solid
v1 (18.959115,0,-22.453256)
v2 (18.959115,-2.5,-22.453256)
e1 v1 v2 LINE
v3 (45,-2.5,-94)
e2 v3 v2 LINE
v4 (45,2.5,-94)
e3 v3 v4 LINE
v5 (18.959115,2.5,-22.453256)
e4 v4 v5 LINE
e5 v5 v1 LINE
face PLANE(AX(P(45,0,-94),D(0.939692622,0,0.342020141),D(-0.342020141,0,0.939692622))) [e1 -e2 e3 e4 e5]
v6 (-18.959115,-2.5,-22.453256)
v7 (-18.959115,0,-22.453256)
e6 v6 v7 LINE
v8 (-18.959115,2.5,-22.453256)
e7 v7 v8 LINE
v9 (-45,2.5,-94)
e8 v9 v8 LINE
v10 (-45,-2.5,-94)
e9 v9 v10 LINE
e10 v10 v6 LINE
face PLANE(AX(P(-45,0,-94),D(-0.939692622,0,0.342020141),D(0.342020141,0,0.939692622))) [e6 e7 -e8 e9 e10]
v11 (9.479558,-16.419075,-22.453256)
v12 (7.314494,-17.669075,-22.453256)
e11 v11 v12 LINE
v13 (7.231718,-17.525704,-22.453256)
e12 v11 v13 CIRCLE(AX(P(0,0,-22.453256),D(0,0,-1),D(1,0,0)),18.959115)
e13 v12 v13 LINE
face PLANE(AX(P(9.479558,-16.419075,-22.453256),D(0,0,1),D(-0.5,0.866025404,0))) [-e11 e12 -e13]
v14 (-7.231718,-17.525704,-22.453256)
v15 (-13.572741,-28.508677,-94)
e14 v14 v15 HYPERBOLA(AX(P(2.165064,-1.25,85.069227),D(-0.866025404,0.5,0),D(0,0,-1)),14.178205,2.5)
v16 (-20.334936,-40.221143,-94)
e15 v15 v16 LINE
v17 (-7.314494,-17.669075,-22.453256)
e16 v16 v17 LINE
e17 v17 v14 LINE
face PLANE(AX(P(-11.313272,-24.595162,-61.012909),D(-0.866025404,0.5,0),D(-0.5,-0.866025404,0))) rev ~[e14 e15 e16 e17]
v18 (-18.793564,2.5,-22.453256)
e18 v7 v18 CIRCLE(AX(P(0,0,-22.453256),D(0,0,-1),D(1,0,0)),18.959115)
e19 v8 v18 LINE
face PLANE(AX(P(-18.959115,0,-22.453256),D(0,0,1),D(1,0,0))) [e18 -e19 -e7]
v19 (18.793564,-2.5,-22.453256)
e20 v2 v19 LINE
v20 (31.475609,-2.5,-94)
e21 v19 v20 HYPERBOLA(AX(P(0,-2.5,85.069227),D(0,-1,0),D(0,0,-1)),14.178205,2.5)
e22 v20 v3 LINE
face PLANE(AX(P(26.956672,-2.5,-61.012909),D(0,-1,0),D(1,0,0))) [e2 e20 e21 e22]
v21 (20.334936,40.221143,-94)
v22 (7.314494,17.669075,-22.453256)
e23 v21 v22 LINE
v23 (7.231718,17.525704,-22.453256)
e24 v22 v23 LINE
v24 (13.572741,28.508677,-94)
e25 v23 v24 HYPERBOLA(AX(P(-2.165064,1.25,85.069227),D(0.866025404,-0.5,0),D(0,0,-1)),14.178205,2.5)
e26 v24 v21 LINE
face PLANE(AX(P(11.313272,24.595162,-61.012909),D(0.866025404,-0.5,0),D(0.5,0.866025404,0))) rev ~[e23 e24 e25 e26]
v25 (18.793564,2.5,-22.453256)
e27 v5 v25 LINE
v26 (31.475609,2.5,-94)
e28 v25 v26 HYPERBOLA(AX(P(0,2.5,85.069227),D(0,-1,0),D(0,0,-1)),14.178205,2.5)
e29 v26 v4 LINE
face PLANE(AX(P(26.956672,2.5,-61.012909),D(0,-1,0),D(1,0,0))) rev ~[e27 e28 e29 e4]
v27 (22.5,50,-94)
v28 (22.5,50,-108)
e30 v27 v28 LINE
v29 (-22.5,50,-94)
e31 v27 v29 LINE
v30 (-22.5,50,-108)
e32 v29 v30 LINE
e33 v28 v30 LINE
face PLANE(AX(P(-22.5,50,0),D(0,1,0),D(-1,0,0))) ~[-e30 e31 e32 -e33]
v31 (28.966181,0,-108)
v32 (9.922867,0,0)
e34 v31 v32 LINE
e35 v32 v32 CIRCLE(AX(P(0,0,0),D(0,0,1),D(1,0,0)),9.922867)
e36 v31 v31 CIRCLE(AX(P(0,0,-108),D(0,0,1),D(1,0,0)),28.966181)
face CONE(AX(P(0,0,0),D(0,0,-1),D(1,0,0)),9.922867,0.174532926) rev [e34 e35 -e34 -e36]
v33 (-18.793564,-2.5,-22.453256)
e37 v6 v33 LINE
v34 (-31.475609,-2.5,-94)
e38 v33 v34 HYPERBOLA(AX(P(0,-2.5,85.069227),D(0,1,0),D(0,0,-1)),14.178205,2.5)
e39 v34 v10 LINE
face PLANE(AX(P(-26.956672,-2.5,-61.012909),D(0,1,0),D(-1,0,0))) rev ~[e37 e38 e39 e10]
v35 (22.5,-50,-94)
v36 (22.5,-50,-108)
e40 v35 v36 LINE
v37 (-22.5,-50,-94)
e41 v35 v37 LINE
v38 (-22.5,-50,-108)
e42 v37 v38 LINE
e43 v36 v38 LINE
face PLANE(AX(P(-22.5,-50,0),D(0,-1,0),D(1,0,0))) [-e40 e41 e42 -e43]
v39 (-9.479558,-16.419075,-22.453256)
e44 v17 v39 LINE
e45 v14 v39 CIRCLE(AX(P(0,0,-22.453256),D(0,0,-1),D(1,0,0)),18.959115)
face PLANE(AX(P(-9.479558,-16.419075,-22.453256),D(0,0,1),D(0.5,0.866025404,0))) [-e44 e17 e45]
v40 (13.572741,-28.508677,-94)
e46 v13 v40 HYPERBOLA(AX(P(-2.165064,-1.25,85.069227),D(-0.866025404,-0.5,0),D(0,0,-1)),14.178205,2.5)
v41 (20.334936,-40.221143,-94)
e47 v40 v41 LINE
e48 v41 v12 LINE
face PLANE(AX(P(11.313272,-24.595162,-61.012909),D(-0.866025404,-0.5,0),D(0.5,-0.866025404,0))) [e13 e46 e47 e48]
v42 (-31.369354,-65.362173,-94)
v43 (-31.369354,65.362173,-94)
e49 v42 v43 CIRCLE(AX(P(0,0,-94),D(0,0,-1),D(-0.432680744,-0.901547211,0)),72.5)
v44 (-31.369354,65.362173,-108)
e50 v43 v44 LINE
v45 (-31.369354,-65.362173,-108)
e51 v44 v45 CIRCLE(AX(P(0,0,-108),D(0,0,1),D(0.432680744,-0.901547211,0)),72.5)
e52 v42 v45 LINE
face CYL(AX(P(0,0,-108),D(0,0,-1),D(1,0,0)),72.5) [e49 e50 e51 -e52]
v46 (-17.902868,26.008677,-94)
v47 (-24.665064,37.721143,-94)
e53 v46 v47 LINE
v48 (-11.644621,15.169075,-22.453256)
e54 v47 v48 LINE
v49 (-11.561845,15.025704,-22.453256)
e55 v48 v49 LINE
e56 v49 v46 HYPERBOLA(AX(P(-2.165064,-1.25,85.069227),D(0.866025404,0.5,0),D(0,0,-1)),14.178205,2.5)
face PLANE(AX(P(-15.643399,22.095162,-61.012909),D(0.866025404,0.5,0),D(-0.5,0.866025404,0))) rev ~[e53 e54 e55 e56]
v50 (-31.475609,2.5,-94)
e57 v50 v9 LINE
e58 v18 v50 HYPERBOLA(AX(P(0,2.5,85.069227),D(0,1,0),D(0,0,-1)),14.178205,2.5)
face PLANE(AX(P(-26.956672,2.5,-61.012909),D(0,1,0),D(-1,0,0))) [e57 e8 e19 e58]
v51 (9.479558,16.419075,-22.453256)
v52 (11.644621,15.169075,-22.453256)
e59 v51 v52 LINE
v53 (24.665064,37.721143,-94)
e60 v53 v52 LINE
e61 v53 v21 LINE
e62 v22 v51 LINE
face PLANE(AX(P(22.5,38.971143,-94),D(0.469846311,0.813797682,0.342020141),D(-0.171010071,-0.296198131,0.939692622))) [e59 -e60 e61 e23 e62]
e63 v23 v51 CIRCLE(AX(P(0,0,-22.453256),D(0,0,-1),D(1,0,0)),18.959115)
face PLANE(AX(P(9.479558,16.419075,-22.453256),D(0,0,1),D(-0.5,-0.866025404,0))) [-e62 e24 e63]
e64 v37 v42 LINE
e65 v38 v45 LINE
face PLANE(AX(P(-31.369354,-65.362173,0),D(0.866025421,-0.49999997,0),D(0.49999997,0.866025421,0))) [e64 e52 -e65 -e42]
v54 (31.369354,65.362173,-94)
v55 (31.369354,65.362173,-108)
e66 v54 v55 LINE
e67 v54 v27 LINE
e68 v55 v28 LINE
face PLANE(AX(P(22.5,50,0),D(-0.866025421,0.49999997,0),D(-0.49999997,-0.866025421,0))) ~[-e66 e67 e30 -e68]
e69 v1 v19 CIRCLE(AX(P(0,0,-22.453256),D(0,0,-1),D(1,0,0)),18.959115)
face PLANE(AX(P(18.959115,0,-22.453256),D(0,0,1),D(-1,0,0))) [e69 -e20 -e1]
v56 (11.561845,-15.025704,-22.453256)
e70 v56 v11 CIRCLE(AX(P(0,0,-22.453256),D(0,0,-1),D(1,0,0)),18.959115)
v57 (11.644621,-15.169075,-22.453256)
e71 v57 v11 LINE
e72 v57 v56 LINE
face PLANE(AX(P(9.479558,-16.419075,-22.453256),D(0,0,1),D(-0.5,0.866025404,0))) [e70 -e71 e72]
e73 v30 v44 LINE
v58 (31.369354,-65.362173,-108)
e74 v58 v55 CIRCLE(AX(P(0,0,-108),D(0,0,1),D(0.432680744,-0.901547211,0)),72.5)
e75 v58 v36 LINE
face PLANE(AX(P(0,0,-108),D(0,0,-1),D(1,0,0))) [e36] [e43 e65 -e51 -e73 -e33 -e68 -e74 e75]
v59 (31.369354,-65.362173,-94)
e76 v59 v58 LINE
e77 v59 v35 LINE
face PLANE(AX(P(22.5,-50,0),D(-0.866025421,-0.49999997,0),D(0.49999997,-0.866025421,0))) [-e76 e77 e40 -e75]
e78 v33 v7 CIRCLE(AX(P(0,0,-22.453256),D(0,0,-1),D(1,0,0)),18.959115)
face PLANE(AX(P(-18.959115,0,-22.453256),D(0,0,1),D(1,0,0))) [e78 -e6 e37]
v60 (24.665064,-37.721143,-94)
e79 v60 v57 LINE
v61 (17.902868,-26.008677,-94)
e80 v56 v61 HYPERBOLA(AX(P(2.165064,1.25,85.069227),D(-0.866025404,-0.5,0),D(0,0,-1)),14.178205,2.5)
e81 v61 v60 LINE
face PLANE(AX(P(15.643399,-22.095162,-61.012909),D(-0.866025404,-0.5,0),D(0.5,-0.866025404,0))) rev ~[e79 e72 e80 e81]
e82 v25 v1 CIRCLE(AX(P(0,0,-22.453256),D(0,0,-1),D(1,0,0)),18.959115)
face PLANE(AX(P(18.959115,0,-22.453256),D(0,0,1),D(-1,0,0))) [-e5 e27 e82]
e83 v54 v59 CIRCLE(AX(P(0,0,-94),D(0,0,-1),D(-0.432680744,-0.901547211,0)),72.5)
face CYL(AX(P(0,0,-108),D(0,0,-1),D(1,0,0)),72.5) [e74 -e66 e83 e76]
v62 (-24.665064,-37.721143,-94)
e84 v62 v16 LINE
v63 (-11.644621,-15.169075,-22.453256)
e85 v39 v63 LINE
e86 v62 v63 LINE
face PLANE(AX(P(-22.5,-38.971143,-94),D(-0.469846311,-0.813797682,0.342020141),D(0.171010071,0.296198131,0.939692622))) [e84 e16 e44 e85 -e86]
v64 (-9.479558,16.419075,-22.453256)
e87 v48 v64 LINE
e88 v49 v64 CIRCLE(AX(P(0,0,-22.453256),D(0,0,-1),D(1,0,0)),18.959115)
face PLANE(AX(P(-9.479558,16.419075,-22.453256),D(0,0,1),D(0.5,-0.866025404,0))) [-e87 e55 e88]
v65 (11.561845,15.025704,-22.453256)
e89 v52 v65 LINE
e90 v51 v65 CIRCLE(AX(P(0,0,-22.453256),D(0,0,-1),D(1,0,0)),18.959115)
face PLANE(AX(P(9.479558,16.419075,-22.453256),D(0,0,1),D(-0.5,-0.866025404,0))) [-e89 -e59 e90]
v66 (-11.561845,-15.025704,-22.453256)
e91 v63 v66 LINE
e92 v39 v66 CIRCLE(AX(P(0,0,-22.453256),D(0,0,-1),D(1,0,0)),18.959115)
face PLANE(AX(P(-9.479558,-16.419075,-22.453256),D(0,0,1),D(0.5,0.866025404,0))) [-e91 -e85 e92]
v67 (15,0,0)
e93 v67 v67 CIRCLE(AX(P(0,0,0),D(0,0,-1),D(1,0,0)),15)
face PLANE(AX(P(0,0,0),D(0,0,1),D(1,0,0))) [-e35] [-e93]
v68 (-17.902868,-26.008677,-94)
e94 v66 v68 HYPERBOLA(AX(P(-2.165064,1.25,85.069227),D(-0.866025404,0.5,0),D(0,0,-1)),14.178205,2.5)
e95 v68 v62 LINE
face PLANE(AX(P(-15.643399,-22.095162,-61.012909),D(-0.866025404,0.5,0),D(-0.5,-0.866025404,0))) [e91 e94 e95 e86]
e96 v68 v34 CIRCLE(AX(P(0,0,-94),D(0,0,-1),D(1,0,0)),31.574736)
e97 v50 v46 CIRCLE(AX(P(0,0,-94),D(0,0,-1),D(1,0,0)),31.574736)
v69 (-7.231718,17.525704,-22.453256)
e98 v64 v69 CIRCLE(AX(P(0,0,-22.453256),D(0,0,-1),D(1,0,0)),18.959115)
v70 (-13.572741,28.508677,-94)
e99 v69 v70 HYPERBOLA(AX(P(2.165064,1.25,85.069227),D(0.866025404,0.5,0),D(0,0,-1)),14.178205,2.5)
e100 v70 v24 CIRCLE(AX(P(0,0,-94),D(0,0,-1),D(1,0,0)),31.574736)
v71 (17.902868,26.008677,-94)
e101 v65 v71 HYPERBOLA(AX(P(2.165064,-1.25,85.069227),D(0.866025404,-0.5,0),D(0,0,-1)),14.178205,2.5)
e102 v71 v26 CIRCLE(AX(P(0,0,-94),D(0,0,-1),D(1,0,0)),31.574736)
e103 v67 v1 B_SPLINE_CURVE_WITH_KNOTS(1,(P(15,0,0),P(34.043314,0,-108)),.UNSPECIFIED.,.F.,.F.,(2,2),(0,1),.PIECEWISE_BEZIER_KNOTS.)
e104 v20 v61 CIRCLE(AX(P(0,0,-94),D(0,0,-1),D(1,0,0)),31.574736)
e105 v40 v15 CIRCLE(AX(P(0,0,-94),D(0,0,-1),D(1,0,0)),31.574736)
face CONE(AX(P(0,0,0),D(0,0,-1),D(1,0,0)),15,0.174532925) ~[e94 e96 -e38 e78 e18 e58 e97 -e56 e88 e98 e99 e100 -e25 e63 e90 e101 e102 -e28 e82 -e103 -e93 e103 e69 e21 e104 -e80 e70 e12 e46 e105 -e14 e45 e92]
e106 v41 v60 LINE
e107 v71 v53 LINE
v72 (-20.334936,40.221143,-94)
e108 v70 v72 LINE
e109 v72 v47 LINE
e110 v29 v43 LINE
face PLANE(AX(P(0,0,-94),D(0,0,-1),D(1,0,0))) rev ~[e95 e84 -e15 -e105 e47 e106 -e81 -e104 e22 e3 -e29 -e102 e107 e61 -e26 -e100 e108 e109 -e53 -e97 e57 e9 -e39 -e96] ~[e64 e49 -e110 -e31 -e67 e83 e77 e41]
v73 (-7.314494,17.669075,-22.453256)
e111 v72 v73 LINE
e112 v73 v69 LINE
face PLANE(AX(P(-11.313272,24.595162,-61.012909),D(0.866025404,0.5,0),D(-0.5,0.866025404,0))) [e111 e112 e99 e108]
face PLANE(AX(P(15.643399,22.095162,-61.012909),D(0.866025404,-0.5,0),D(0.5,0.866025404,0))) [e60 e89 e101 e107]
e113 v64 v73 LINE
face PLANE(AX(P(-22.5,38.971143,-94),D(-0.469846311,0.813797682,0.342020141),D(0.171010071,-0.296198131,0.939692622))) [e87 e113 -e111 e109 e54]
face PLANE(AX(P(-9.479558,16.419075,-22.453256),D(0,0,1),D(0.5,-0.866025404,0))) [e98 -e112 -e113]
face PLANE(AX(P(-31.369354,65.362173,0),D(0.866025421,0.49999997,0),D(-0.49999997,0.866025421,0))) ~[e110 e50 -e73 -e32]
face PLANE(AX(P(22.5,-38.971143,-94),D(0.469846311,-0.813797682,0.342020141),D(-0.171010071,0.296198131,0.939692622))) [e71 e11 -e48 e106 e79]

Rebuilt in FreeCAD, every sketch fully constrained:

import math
import FreeCAD as App
import Part
import Sketcher
Q = App.Units.Quantity


def add_polygon(sketch, points):
    """Adds a closed chain of lines whose ends are joined by coincident constraints."""
    first, n = sketch.GeometryCount, len(points)
    for a, b in zip(points, points[1:] + points[:1]):
        sketch.addGeometry(Part.LineSegment(App.Vector(*a, 0), App.Vector(*b, 0)), False)
    for i in range(n):
        sketch.addConstraint(Sketcher.Constraint("Coincident", first + i, 2, first + (i + 1) % n, 1))

doc = App.newDocument("Part")
body = doc.addObject("PartDesign::Body", "Body")

sketch1 = body.newObject("Sketcher::SketchObject", "Sketch")
sketch1.AttachmentSupport = (doc.getObject("XY_Plane"), [""])
sketch1.MapMode = "FlatFace"
sketch1.addGeometry(Part.Circle(App.Vector(0, 0, 0), App.Vector(0, 0, 1), 15), False)
sketch1.addConstraint([
    Sketcher.Constraint("Coincident", 0, 3, -1, 1),
    Sketcher.Constraint("Diameter", 0, Q("30 mm")),
])
pad1 = body.newObject("PartDesign::Pad", "Pad")
pad1.Profile = sketch1
pad1.Length = 108
pad1.Reversed = True
pad1.TaperAngle = 10

sketch2 = body.newObject("Sketcher::SketchObject", "Sketch001")
sketch2.AttachmentSupport = (doc.getObject("XY_Plane"), [""])
sketch2.MapMode = "FlatFace"
sketch2.AttachmentOffset = App.Placement(App.Vector(0, 0, -108), App.Rotation())
sketch2.addGeometry(Part.Circle(App.Vector(0, 0, 0), App.Vector(0, 0, 1), 72), False)
sketch2.addConstraint([
    Sketcher.Constraint("Coincident", 0, 3, -1, 1),
    Sketcher.Constraint("Diameter", 0, Q("145 mm")),
])
pad2 = body.newObject("PartDesign::Pad", "Pad001")
pad2.Profile = sketch2
pad2.Length = 14

sketch3 = body.newObject("Sketcher::SketchObject", "Sketch002")
sketch3.AttachmentSupport = (doc.getObject("XY_Plane"), [""])
sketch3.MapMode = "FlatFace"
sketch3.addGeometry([
    Part.LineSegment(App.Vector(-22, -50, 0), App.Vector(-31, -65, 0)),
    Part.ArcOfCircle(Part.Circle(App.Vector(0, 0, 0), App.Vector(0, 0, 1), 73), math.radians(-116), math.radians(-64)),
    Part.LineSegment(App.Vector(31, -65, 0), App.Vector(22, -50, 0)),
    Part.LineSegment(App.Vector(22, -50, 0), App.Vector(-22, -50, 0)),
], False)
sketch3.addConstraint([
    Sketcher.Constraint("Coincident", 0, 2, 1, 1),
    Sketcher.Constraint("Coincident", 1, 2, 2, 1),
    Sketcher.Constraint("Coincident", 2, 2, 3, 1),
    Sketcher.Constraint("Coincident", 3, 2, 0, 1),
    Sketcher.Constraint("Horizontal", 3),
    Sketcher.Constraint("Coincident", 1, 3, -1, 1),
    Sketcher.Constraint("Horizontal", 0, 2, 1, 2),
    Sketcher.Constraint("Equal", 0, 2),
    Sketcher.Constraint("DistanceX", 3, 2, 3, 1, Q("45 mm")),
    Sketcher.Constraint("Angle", 0, Q("-119.999998 deg")),
    Sketcher.Constraint("DistanceY", 2, 2, -1, 1, Q("50 mm")),
    Sketcher.Constraint("Radius", 1, Q("72.500002 mm")),
])
pocket1 = body.newObject("PartDesign::Pocket", "Pocket")
pocket1.Profile = sketch3
pocket1.Type = "ThroughAll"
doc.recompute()

mirrored = body.newObject("PartDesign::Mirrored", "Mirrored")
mirrored.Originals = [pocket1]
mirrored.MirrorPlane = (doc.getObject("XZ_Plane"), [""])
body.Tip = mirrored

sketch4 = body.newObject("Sketcher::SketchObject", "Sketch003")
sketch4.AttachmentSupport = (doc.getObject("XZ_Plane"), [""])
sketch4.MapMode = "FlatFace"
add_polygon(sketch4, [(29, -108), (10, 0), (0, 0), (0, -108)])
sketch4.addConstraint([
    Sketcher.Constraint("Horizontal", 1),
    Sketcher.Constraint("Vertical", 2),
    Sketcher.Constraint("Horizontal", 3),
    Sketcher.Constraint("Coincident", 1, 2, -1, 1),
    Sketcher.Constraint("DistanceY", 2, 2, 2, 1, Q("108 mm")),
    Sketcher.Constraint("Angle", 0, Q("100 deg")),
    Sketcher.Constraint("DistanceX", 3, 1, 3, 2, Q("28.966181 mm")),
])
groove = body.newObject("PartDesign::Groove", "Groove")
groove.Profile = sketch4
groove.ReferenceAxis = (sketch4, ["V_Axis"])
groove.Angle = 360

sketch5 = body.newObject("Sketcher::SketchObject", "Sketch004")
sketch5.AttachmentSupport = (doc.getObject("XZ_Plane"), [""])
sketch5.MapMode = "FlatFace"
add_polygon(sketch5, [(45, -94), (19, -22), (14, -22), (26, -94)])
sketch5.addConstraint([
    Sketcher.Constraint("Horizontal", 1),
    Sketcher.Constraint("Horizontal", 3),
    Sketcher.Constraint("Angle", 0, Q("110 deg")),
    Sketcher.Constraint("Angle", 2, Q("-80 deg")),
    Sketcher.Constraint("DistanceY", 2, 2, -1, 1, Q("94 mm")),
    Sketcher.Constraint("DistanceX", -1, 1, 3, 2, Q("45 mm")),
    Sketcher.Constraint("DistanceX", 1, 2, 1, 1, Q("5.077133 mm")),
    Sketcher.Constraint("DistanceX", 3, 1, 3, 2, Q("18.502397 mm")),
])
pad3 = body.newObject("PartDesign::Pad", "Pad002")
pad3.Profile = sketch5
pad3.Length = 5
pad3.Midplane = True
doc.recompute()

polarpattern = body.newObject("PartDesign::PolarPattern", "PolarPattern")
polarpattern.Originals = [pad3]
polarpattern.Axis = (doc.getObject("Z_Axis"), [""])
polarpattern.Angle = 360
polarpattern.Occurrences = 6
body.Tip = polarpattern

doc.recompute()
